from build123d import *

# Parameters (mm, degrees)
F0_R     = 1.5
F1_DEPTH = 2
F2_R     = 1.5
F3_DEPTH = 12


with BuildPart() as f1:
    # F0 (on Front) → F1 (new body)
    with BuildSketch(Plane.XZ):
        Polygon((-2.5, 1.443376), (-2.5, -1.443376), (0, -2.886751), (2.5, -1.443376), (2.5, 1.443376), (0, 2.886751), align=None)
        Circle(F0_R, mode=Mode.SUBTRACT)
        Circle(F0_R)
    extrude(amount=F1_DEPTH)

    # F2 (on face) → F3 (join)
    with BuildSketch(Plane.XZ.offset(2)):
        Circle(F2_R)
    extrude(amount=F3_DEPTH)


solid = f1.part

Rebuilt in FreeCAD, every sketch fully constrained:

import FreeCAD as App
import Part
import Sketcher
from FreeCAD import Vector
Q = App.Units.Quantity


def add_polygon(sketch, points):
    """Adds a closed chain of lines whose ends are joined by coincident constraints."""
    first, n = sketch.GeometryCount, len(points)
    for a, b in zip(points, points[1:] + points[:1]):
        sketch.addGeometry(Part.LineSegment(App.Vector(*a, 0), App.Vector(*b, 0)), False)
    for i in range(n):
        sketch.addConstraint(Sketcher.Constraint("Coincident", first + i, 2, first + (i + 1) % n, 1))

doc = App.newDocument("Part")
body = doc.addObject("PartDesign::Body", "Body")

sketch1 = body.newObject("Sketcher::SketchObject", "Sketch")
sketch1.AttachmentSupport = (doc.getObject("XZ_Plane"), [""])
sketch1.MapMode = "FlatFace"
add_polygon(sketch1, [(-2.5, 1.443376), (-2.5, -1.443376), (0, -2.886751), (2.5, -1.443376), (2.5, 1.443376), (0, 2.886751)])
sketch1.addConstraint([
    Sketcher.Constraint("Vertical", 0),
    Sketcher.Constraint("Vertical", 3),
    Sketcher.Constraint("Symmetric", 0, 2, 3, 2, -1, 1),
    Sketcher.Constraint("Symmetric", 1, 2, 4, 2, -1, 1),
    Sketcher.Constraint("PointOnObject", 1, 2, -2),
    Sketcher.Constraint("Parallel", 2, 5),
    Sketcher.Constraint("Horizontal", 0, 2, 2, 2),
    Sketcher.Constraint("Angle", 1, Q("-29.999988 deg")),
    Sketcher.Constraint("DistanceX", 0, 2, 2, 2, 5.0),
    Sketcher.Constraint("DistanceY", 0, 2, 0, 1, 2.886752),
])
pad1 = body.newObject("PartDesign::Pad", "Pad")
pad1.Profile = sketch1
pad1.Length = 2

sketch2 = body.newObject("Sketcher::SketchObject", "Sketch001")
sketch2.AttachmentSupport = (doc.getObject("XZ_Plane"), [""])
sketch2.MapMode = "FlatFace"
sketch2.AttachmentOffset = App.Placement(Vector(0, 0, 2), App.Rotation())
sketch2.addGeometry(Part.Circle(Vector(0, 0, 0), Vector(0, 0, 1), 1.5), False)
sketch2.addConstraint([
    Sketcher.Constraint("Coincident", 0, 3, -1, 1),
    Sketcher.Constraint("Diameter", 0, 3.0),
])
pad2 = body.newObject("PartDesign::Pad", "Pad001")
pad2.Profile = sketch2
pad2.Length = 12

doc.recompute()
